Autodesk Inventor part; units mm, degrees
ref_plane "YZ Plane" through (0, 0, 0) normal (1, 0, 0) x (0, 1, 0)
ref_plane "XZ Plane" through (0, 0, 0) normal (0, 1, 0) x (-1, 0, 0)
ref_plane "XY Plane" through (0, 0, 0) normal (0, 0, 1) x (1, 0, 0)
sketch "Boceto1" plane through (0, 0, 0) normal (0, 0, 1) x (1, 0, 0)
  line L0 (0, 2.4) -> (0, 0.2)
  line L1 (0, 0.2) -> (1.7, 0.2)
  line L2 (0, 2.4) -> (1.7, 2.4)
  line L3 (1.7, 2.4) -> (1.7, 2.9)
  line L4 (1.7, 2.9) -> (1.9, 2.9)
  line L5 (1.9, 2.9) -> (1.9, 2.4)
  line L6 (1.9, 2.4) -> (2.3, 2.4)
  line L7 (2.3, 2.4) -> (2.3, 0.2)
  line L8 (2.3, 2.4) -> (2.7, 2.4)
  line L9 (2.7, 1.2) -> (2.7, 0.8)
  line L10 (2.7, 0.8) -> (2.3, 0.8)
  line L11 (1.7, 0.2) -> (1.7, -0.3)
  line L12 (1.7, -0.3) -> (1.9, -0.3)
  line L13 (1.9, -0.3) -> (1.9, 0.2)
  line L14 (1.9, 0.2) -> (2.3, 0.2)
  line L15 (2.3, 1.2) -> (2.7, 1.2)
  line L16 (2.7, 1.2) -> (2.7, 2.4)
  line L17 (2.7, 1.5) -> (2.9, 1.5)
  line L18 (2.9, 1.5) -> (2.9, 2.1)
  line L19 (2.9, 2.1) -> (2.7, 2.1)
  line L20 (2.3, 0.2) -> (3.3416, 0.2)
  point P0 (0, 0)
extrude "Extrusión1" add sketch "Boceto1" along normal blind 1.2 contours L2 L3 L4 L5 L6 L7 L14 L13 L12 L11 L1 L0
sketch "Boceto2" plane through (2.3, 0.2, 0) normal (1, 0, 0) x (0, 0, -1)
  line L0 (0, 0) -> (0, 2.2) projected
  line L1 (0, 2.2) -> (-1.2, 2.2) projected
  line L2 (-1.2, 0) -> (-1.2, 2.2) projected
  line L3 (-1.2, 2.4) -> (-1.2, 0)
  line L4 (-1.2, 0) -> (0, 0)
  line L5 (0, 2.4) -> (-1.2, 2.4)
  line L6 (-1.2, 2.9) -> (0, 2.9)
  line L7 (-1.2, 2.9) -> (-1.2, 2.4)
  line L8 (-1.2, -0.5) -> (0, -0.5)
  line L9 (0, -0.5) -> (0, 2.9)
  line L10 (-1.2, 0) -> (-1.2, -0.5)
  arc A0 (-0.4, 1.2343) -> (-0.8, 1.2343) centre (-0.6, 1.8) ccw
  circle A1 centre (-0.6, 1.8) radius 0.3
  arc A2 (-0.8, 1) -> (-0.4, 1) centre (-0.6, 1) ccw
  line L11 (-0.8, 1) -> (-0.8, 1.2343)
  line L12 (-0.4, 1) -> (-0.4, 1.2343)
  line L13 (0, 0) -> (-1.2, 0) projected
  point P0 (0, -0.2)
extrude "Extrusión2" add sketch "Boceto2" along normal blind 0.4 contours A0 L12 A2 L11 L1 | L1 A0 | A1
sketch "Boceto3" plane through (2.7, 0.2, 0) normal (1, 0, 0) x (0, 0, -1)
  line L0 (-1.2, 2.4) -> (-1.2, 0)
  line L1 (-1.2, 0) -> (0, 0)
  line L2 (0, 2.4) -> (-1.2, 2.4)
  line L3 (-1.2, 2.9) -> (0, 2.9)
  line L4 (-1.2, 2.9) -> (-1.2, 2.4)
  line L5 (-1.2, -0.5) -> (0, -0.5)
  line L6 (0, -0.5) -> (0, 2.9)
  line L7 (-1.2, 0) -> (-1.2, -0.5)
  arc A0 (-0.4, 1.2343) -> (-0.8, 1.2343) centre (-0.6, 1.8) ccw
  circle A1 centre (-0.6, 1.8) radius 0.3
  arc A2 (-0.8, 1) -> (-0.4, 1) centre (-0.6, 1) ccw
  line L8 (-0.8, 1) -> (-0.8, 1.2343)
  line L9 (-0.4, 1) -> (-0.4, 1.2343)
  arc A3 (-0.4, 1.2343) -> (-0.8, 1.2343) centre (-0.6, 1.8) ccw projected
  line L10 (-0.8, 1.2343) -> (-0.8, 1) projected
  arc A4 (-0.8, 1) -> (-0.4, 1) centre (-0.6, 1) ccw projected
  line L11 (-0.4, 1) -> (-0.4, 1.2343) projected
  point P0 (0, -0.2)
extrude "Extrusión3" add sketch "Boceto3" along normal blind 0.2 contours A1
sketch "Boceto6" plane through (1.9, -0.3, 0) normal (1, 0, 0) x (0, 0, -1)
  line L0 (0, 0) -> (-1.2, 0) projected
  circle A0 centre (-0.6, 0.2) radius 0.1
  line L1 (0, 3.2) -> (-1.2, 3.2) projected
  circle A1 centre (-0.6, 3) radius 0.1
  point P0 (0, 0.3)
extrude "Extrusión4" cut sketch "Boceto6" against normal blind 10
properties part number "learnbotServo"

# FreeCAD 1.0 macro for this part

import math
import FreeCAD as App
import Part
import Sketcher
Q = App.Units.Quantity


def add_polygon(sketch, points):
    """Adds a closed chain of lines whose ends are joined by coincident constraints."""
    first, n = sketch.GeometryCount, len(points)
    for a, b in zip(points, points[1:] + points[:1]):
        sketch.addGeometry(Part.LineSegment(App.Vector(*a, 0), App.Vector(*b, 0)), False)
    for i in range(n):
        sketch.addConstraint(Sketcher.Constraint("Coincident", first + i, 2, first + (i + 1) % n, 1))

doc = App.newDocument("Part")
body = doc.addObject("PartDesign::Body", "Body")

# Sketch on XY plane
sketch1 = doc.addObject("Sketcher::SketchObject", "Sketch")
body.addObject(sketch1)
sketch1.AttachmentSupport = (doc.XY_Plane, [""])
sketch1.MapMode = "FlatFace"
add_polygon(sketch1, [(1.7, 2.4), (0, 2.4), (0, 0.2), (1.7, 0.2), (1.7, -0.3), (1.9, -0.3), (1.9, 0.2), (2.3, 0.2), (2.3, 2.4), (1.9, 2.4), (1.9, 2.9), (1.7, 2.9)])  # lines 0-11
sketch1.addConstraint([
    Sketcher.Constraint("Horizontal", 0),
    Sketcher.Constraint("Vertical", 1),
    Sketcher.Constraint("Horizontal", 2),
    Sketcher.Constraint("Vertical", 3),
    Sketcher.Constraint("Horizontal", 4),
    Sketcher.Constraint("Vertical", 5),
    Sketcher.Constraint("Horizontal", 6),
    Sketcher.Constraint("Vertical", 7),
    Sketcher.Constraint("Horizontal", 8),
    Sketcher.Constraint("Vertical", 9),
    Sketcher.Constraint("Horizontal", 10),
    Sketcher.Constraint("Vertical", 11),
    Sketcher.Constraint("PointOnObject", 0, 2, -2),
    Sketcher.Constraint("Horizontal", 2, 2, 5, 2),
    Sketcher.Constraint("Horizontal", 0, 2, 7, 2),
    Sketcher.Constraint("Vertical", 5, 2, 8, 2),
    Sketcher.Constraint("Vertical", 3, 2, 10, 2),
    Sketcher.Constraint("Equal", 5, 9),
    Sketcher.Constraint("DistanceX", 0, 2, 0, 1, Q("1.7 mm")),
    Sketcher.Constraint("DistanceX", 4, 1, 4, 2, Q("0.2 mm")),
    Sketcher.Constraint("DistanceX", 6, 1, 6, 2, Q("0.4 mm")),
    Sketcher.Constraint("DistanceY", 1, 2, 1, 1, Q("2.2 mm")),
    Sketcher.Constraint("DistanceY", 3, 2, 3, 1, Q("0.5 mm")),
    Sketcher.Constraint("DistanceY", -1, 1, 0, 2, Q("2.4 mm")),
])
pad1 = doc.addObject("PartDesign::Pad", "Pad")
body.addObject(pad1)
pad1.Profile = sketch1
pad1.Length = 1.2

# Sketch on YZ plane
sketch2 = doc.addObject("Sketcher::SketchObject", "Sketch001")
body.addObject(sketch2)
sketch2.AttachmentSupport = (doc.YZ_Plane, [""])
sketch2.MapMode = "FlatFace"
sketch2.AttachmentOffset = App.Placement(App.Vector(0, 0, 2.3), App.Rotation())
sketch2.addGeometry([
    Part.ArcOfCircle(Part.Circle(App.Vector(2, 0.6, 0), App.Vector(0, 0, 1), 0.6), math.radians(-161), math.radians(161)),
    Part.LineSegment(App.Vector(1.43, 0.8, 0), App.Vector(1.2, 0.8, 0)),
    Part.ArcOfCircle(Part.Circle(App.Vector(1.2, 0.6, 0), App.Vector(0, 0, 1), 0.2), math.radians(90), math.radians(270)),
    Part.LineSegment(App.Vector(1.2, 0.4, 0), App.Vector(1.43, 0.4, 0)),
], False)
sketch2.addConstraint([
    Sketcher.Constraint("Coincident", 0, 2, 1, 1),
    Sketcher.Constraint("Tangent", 1, 2, 2, 1),
    Sketcher.Constraint("Tangent", 2, 2, 3, 1),
    Sketcher.Constraint("Coincident", 3, 2, 0, 1),
    Sketcher.Constraint("Horizontal", 1),
    Sketcher.Constraint("Horizontal", 3),
    Sketcher.Constraint("Horizontal", 0, 3, 2, 3),
    Sketcher.Constraint("Radius", 0, Q("0.6 mm")),
    Sketcher.Constraint("Radius", 2, Q("0.2 mm")),
    Sketcher.Constraint("DistanceX", -1, 1, 0, 3, Q("2 mm")),
    Sketcher.Constraint("DistanceY", -1, 1, 0, 3, Q("0.6 mm")),
    Sketcher.Constraint("DistanceX", -1, 1, 2, 3, Q("1.2 mm")),
])
pad2 = doc.addObject("PartDesign::Pad", "Pad001")
body.addObject(pad2)
pad2.Profile = sketch2
pad2.Length = 0.4

# Sketch on YZ plane
sketch3 = doc.addObject("Sketcher::SketchObject", "Sketch002")
body.addObject(sketch3)
sketch3.AttachmentSupport = (doc.YZ_Plane, [""])
sketch3.MapMode = "FlatFace"
sketch3.AttachmentOffset = App.Placement(App.Vector(0, 0, 2.7), App.Rotation())
sketch3.addGeometry(Part.Circle(App.Vector(2, 0.6, 0), App.Vector(0, 0, 1), 0.3), False)
sketch3.addConstraint([
    Sketcher.Constraint("Diameter", 0, Q("0.6 mm")),
    Sketcher.Constraint("DistanceX", -1, 1, 0, 3, Q("2 mm")),
    Sketcher.Constraint("DistanceY", -1, 1, 0, 3, Q("0.6 mm")),
])
pad3 = doc.addObject("PartDesign::Pad", "Pad002")
body.addObject(pad3)
pad3.Profile = sketch3
pad3.Length = 0.2

# Sketch on YZ plane
sketch4 = doc.addObject("Sketcher::SketchObject", "Sketch003")
body.addObject(sketch4)
sketch4.AttachmentSupport = (doc.YZ_Plane, [""])
sketch4.MapMode = "FlatFace"
sketch4.AttachmentOffset = App.Placement(App.Vector(0, 0, 1.9), App.Rotation())
sketch4.addGeometry([
    Part.Circle(App.Vector(-0.1, 0.6, 0), App.Vector(0, 0, 1), 0.1),
    Part.Circle(App.Vector(2.7, 0.6, 0), App.Vector(0, 0, 1), 0.1),
], False)
sketch4.addConstraint([
    Sketcher.Constraint("Equal", 0, 1),
    Sketcher.Constraint("Horizontal", 0, 3, 1, 3),
    Sketcher.Constraint("Diameter", 0, Q("0.2 mm")),
    Sketcher.Constraint("DistanceX", 0, 3, -1, 1, Q("0.1 mm")),
    Sketcher.Constraint("DistanceY", -1, 1, 0, 3, Q("0.6 mm")),
    Sketcher.Constraint("DistanceX", -1, 1, 1, 3, Q("2.7 mm")),
])
pocket1 = doc.addObject("PartDesign::Pocket", "Pocket")
body.addObject(pocket1)
pocket1.Profile = sketch4
pocket1.Length = 10

doc.recompute()
